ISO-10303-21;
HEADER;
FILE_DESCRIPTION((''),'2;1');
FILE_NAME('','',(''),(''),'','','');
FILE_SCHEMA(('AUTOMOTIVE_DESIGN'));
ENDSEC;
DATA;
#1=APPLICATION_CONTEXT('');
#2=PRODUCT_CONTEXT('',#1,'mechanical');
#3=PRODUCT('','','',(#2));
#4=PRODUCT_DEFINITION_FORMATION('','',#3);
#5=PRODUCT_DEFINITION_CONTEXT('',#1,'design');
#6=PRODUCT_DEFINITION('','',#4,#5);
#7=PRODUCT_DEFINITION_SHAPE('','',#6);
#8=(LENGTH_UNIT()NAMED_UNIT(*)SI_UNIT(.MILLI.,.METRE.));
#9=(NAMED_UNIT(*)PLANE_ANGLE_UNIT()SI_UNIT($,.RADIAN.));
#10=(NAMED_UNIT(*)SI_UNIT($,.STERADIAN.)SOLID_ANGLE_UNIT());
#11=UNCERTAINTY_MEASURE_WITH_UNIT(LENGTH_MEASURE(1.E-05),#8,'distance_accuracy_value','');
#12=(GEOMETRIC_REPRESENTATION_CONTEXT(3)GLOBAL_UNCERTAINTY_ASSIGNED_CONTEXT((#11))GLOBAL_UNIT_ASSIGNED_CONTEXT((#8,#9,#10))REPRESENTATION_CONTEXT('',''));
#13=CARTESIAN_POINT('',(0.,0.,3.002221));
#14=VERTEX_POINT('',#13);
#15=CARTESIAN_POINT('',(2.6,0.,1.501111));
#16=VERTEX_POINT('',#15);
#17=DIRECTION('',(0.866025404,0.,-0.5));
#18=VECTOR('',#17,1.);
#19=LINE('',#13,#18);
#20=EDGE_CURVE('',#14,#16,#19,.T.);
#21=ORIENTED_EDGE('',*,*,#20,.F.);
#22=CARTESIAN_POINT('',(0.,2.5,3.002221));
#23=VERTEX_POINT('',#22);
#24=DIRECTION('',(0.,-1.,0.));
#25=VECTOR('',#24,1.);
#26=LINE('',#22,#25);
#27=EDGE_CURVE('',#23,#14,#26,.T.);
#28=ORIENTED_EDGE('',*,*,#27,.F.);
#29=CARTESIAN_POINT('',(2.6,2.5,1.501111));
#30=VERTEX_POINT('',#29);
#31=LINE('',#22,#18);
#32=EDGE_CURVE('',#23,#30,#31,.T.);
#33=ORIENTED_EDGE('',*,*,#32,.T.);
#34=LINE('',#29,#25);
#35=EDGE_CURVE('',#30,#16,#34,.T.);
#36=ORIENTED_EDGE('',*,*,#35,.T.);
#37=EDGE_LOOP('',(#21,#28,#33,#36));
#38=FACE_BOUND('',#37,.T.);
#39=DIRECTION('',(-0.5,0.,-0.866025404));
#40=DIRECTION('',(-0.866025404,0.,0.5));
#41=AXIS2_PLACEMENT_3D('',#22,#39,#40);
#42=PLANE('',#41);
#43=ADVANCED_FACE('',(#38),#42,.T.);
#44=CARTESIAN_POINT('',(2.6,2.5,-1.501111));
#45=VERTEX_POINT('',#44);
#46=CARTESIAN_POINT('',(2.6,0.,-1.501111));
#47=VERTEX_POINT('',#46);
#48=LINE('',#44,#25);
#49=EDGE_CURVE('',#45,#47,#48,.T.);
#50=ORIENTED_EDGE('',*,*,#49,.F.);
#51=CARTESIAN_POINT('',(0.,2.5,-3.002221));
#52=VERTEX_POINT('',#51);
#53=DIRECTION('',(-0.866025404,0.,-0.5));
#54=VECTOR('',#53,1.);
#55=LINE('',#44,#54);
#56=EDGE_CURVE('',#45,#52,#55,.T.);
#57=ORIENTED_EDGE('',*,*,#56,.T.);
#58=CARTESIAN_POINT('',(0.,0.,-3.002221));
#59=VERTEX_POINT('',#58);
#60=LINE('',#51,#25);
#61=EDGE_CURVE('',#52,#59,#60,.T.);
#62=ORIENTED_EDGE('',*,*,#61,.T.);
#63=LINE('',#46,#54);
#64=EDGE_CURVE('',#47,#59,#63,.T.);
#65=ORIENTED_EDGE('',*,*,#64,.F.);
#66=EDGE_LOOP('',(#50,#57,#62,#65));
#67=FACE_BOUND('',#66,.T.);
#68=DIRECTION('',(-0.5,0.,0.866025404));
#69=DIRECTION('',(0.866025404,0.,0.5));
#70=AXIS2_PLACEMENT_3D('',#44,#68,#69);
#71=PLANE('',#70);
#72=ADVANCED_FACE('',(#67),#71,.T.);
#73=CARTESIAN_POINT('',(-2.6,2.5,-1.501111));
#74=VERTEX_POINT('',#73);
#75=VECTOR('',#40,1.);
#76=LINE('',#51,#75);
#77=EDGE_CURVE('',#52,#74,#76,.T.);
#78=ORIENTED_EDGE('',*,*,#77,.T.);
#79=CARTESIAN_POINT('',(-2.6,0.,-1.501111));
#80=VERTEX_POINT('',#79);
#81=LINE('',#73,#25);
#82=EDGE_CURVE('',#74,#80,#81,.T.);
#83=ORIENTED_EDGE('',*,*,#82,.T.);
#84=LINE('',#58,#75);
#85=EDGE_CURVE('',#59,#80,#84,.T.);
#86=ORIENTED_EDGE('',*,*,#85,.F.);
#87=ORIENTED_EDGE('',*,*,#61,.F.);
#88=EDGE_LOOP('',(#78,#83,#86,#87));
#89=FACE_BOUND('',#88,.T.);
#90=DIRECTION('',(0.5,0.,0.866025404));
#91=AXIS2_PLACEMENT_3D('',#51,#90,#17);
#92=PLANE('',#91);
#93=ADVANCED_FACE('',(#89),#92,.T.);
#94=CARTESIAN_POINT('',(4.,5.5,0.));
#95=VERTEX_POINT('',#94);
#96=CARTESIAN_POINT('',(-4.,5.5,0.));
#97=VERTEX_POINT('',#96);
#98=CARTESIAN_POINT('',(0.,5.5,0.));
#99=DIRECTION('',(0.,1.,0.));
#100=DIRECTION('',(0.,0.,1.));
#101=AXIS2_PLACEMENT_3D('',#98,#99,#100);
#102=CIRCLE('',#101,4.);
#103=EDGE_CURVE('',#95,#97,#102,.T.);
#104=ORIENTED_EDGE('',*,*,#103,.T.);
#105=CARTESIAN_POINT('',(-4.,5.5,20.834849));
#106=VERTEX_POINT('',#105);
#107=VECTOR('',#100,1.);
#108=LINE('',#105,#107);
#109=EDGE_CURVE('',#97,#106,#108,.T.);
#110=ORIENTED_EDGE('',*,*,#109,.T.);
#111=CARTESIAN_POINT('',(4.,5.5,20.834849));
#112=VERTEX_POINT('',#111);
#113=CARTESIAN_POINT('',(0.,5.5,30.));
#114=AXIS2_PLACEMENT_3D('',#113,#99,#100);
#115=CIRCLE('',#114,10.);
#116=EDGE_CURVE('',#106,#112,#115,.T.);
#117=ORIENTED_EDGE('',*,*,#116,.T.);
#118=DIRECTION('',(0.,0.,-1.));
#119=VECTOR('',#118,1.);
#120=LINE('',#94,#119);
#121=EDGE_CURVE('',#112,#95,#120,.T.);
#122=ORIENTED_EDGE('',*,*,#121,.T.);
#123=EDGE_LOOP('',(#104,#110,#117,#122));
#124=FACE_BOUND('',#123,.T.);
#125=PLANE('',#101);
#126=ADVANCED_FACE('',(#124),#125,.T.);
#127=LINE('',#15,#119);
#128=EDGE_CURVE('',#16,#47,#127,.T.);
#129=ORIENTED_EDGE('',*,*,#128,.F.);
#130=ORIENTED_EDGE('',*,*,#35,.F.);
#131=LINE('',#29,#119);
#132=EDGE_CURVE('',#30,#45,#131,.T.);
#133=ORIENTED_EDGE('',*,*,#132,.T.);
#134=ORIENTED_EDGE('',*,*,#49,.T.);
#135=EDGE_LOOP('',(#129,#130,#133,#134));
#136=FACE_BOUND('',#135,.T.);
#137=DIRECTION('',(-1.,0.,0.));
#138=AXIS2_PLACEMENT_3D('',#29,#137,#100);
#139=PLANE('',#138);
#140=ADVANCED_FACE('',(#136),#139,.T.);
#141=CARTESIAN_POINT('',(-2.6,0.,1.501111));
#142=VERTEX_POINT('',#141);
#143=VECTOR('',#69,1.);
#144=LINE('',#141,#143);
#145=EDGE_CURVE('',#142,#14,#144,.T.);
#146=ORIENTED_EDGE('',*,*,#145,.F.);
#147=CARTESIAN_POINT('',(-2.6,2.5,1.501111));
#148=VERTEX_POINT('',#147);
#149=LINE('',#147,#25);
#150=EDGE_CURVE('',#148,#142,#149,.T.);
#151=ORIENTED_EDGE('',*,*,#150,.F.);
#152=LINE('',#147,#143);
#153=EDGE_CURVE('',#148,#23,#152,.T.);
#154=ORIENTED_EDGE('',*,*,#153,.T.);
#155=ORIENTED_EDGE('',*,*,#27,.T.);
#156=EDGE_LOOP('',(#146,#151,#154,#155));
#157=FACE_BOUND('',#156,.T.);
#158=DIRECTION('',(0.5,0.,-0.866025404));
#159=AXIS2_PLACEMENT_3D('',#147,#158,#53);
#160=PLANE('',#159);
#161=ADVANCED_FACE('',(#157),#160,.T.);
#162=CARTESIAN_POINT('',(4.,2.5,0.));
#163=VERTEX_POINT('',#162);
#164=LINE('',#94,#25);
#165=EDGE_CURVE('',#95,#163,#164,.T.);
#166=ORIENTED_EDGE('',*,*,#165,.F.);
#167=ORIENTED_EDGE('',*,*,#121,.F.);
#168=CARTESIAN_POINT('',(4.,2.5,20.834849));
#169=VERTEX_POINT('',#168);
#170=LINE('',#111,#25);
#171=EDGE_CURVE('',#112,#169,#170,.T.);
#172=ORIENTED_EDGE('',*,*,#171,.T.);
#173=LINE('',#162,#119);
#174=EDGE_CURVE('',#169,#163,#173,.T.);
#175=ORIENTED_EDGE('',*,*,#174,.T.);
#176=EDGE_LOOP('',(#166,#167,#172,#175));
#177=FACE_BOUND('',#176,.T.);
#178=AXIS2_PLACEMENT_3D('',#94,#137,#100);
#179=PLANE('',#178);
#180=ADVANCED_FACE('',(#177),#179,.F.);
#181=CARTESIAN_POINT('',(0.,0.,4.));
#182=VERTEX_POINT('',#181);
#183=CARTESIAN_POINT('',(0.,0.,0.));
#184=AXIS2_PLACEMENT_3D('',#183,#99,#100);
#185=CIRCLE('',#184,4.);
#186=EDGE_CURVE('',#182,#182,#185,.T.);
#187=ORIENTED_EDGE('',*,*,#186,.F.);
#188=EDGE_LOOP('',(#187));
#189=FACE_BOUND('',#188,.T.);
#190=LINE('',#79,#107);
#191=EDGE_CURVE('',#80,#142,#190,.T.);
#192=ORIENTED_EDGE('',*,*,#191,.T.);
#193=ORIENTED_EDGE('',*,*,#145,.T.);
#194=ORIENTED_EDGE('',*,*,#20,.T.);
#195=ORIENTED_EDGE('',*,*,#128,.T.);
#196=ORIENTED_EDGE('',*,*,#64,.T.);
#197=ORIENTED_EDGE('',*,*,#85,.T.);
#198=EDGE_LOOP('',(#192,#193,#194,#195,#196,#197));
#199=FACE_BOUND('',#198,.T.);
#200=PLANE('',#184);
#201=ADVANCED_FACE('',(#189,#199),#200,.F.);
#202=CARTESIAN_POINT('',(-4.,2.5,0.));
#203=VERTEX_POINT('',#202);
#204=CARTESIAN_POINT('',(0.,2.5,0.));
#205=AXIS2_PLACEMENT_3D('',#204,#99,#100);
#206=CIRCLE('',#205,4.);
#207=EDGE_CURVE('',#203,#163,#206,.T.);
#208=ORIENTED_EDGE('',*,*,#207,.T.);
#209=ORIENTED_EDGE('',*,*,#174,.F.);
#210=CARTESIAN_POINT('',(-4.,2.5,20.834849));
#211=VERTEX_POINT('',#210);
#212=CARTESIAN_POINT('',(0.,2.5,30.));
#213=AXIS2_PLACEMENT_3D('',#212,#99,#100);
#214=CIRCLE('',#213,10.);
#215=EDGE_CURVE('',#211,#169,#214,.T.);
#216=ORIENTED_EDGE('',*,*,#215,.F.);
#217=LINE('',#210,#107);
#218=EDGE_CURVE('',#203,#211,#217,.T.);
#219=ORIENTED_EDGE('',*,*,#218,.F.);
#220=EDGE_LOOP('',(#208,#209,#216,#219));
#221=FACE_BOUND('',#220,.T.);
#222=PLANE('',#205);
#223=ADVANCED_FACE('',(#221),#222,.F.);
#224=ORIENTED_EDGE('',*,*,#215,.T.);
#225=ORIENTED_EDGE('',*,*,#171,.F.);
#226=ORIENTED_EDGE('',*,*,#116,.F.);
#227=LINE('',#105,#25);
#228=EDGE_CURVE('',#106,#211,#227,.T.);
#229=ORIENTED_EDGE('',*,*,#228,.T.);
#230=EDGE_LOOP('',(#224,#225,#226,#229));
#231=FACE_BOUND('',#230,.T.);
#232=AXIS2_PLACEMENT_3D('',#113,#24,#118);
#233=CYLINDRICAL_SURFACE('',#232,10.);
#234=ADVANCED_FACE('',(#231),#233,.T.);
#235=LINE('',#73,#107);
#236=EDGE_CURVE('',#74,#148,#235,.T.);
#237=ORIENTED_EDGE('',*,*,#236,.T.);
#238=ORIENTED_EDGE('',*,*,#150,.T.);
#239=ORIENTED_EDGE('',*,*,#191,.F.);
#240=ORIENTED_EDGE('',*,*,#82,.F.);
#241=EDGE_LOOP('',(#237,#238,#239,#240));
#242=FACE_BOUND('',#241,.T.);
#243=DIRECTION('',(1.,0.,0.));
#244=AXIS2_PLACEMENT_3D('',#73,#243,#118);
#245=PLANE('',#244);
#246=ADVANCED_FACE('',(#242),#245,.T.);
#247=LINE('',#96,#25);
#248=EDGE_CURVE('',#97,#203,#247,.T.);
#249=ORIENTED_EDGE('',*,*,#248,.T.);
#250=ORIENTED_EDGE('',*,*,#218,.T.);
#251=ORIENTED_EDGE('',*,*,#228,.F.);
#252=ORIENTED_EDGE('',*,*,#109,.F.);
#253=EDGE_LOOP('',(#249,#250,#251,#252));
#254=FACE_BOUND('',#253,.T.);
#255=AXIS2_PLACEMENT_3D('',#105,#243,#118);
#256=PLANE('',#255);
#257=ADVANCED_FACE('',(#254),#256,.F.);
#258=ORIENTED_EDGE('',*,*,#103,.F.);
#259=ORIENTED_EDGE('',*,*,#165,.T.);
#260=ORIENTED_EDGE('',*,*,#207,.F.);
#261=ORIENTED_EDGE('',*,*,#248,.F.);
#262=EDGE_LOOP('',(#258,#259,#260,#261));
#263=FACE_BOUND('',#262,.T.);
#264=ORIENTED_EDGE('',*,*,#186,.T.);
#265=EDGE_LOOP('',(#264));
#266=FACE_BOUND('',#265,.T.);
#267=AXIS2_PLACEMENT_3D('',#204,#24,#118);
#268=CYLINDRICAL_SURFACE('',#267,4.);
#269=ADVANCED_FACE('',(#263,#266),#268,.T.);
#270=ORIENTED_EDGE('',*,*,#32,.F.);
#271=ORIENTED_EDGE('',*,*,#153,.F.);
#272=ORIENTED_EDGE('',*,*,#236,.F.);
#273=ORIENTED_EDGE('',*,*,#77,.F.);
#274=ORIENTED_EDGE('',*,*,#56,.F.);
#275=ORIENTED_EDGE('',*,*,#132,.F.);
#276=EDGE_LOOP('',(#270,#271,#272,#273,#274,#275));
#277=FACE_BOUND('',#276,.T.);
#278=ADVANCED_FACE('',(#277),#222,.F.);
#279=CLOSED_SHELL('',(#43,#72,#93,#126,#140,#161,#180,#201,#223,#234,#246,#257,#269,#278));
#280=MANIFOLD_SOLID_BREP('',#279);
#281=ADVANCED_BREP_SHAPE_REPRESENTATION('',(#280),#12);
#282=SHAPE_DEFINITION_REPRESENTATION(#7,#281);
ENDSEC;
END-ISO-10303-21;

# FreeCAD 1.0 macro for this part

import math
import FreeCAD as App
import Part
import Sketcher

V = App.Vector
Q = App.Units.Quantity


def add_polygon(sketch, points):
    """Adds a closed chain of lines whose ends are joined by coincident constraints."""
    first, n = sketch.GeometryCount, len(points)
    for a, b in zip(points, points[1:] + points[:1]):
        sketch.addGeometry(Part.LineSegment(App.Vector(*a, 0), App.Vector(*b, 0)), False)
    for i in range(n):
        sketch.addConstraint(Sketcher.Constraint("Coincident", first + i, 2, first + (i + 1) % n, 1))

doc = App.newDocument("Part")
params = doc.addObject("Spreadsheet::Sheet", "Params")
for row, (alias, value) in enumerate([
    ("sketch1_diameter", "8 mm"),
    ("pad1_length", "2.5 mm"),
    ("sketch2_radius", "4 mm"),
    ("sketch2_radius2", "10 mm"),
    ("pad2_length", "3 mm"),
], start=1):
    params.set(f"A{row}", alias)
    params.set(f"B{row}", "=" + value)
    params.setAlias(f"B{row}", alias)

body = doc.addObject("PartDesign::Body", "Body")

# Sketch on XZ plane
sketch1 = doc.addObject("Sketcher::SketchObject", "Sketch")
body.addObject(sketch1)
sketch1.AttachmentSupport = (doc.XZ_Plane, [""])
sketch1.MapMode = "FlatFace"
sketch1.addGeometry(Part.Circle(V(0, 0, 0), V(0, 0, 1), 4), False)  # 0
add_polygon(sketch1, [(-2.6, -1.501111), (0, -3.002221), (2.6, -1.501111), (2.6, 1.501111), (0, 3.002221), (-2.6, 1.501111)])  # lines 1-6
sketch1.addConstraint([
    Sketcher.Constraint("Vertical", 3),
    Sketcher.Constraint("Vertical", 6),
    Sketcher.Constraint("Coincident", 0, 3, -1, 1),
    Sketcher.Constraint("Symmetric", 1, 2, 4, 2, -1, 1),
    Sketcher.Constraint("Symmetric", 2, 2, 5, 2, -1, 1),
    Sketcher.Constraint("PointOnObject", 1, 2, -2),
    Sketcher.Constraint("Parallel", 1, 4),
    Sketcher.Constraint("Horizontal", 3, 2, 5, 2),
    Sketcher.Constraint("Diameter", 0, 8.0),
    Sketcher.Constraint("Angle", 1, Q("-30 deg")),
    Sketcher.Constraint("DistanceX", -1, 1, 2, 2, 2.6),
    Sketcher.Constraint("DistanceY", 3, 1, 3, 2, 3.002221),
])
sketch1.setExpression("Constraints[14]", "Params.sketch1_diameter")
pad1 = doc.addObject("PartDesign::Pad", "Pad")
body.addObject(pad1)
pad1.Profile = sketch1
pad1.setExpression("Length", "Params.pad1_length")
pad1.Reversed = True

# Sketch on XZ plane
sketch2 = doc.addObject("Sketcher::SketchObject", "Sketch001")
body.addObject(sketch2)
sketch2.AttachmentSupport = (doc.XZ_Plane, [""])
sketch2.MapMode = "FlatFace"
sketch2.AttachmentOffset = App.Placement(V(0, 0, -2.5), App.Rotation())
sketch2.addGeometry([
    Part.LineSegment(V(4, 20.834849, 0), V(4, 0, 0)),
    Part.ArcOfCircle(Part.Circle(V(0, 0, 0), V(0, 0, 1), 4), math.radians(180), math.radians(360)),
    Part.LineSegment(V(-4, 0, 0), V(-4, 20.834849, 0)),
    Part.ArcOfCircle(Part.Circle(V(0, 30, 0), V(0, 0, 1), 10), math.radians(-66.421822), math.radians(246.421822)),
], False)
sketch2.addConstraint([
    Sketcher.Constraint("Tangent", 0, 2, 1, 2),
    Sketcher.Constraint("Tangent", 1, 1, 2, 1),
    Sketcher.Constraint("Coincident", 2, 2, 3, 2),
    Sketcher.Constraint("Coincident", 3, 1, 0, 1),
    Sketcher.Constraint("Vertical", 0),
    Sketcher.Constraint("Vertical", 2),
    Sketcher.Constraint("Coincident", 1, 3, -1, 1),
    Sketcher.Constraint("PointOnObject", 3, 3, -2),
    Sketcher.Constraint("Radius", 1, 4.0),
    Sketcher.Constraint("Radius", 3, 10.0),
    Sketcher.Constraint("DistanceY", -1, 1, 3, 3, 30.0),
])
sketch2.setExpression("Constraints[8]", "Params.sketch2_radius")
sketch2.setExpression("Constraints[9]", "Params.sketch2_radius2")
pad2 = doc.addObject("PartDesign::Pad", "Pad001")
body.addObject(pad2)
pad2.Profile = sketch2
pad2.setExpression("Length", "Params.pad2_length")
pad2.Reversed = True

doc.recompute()
